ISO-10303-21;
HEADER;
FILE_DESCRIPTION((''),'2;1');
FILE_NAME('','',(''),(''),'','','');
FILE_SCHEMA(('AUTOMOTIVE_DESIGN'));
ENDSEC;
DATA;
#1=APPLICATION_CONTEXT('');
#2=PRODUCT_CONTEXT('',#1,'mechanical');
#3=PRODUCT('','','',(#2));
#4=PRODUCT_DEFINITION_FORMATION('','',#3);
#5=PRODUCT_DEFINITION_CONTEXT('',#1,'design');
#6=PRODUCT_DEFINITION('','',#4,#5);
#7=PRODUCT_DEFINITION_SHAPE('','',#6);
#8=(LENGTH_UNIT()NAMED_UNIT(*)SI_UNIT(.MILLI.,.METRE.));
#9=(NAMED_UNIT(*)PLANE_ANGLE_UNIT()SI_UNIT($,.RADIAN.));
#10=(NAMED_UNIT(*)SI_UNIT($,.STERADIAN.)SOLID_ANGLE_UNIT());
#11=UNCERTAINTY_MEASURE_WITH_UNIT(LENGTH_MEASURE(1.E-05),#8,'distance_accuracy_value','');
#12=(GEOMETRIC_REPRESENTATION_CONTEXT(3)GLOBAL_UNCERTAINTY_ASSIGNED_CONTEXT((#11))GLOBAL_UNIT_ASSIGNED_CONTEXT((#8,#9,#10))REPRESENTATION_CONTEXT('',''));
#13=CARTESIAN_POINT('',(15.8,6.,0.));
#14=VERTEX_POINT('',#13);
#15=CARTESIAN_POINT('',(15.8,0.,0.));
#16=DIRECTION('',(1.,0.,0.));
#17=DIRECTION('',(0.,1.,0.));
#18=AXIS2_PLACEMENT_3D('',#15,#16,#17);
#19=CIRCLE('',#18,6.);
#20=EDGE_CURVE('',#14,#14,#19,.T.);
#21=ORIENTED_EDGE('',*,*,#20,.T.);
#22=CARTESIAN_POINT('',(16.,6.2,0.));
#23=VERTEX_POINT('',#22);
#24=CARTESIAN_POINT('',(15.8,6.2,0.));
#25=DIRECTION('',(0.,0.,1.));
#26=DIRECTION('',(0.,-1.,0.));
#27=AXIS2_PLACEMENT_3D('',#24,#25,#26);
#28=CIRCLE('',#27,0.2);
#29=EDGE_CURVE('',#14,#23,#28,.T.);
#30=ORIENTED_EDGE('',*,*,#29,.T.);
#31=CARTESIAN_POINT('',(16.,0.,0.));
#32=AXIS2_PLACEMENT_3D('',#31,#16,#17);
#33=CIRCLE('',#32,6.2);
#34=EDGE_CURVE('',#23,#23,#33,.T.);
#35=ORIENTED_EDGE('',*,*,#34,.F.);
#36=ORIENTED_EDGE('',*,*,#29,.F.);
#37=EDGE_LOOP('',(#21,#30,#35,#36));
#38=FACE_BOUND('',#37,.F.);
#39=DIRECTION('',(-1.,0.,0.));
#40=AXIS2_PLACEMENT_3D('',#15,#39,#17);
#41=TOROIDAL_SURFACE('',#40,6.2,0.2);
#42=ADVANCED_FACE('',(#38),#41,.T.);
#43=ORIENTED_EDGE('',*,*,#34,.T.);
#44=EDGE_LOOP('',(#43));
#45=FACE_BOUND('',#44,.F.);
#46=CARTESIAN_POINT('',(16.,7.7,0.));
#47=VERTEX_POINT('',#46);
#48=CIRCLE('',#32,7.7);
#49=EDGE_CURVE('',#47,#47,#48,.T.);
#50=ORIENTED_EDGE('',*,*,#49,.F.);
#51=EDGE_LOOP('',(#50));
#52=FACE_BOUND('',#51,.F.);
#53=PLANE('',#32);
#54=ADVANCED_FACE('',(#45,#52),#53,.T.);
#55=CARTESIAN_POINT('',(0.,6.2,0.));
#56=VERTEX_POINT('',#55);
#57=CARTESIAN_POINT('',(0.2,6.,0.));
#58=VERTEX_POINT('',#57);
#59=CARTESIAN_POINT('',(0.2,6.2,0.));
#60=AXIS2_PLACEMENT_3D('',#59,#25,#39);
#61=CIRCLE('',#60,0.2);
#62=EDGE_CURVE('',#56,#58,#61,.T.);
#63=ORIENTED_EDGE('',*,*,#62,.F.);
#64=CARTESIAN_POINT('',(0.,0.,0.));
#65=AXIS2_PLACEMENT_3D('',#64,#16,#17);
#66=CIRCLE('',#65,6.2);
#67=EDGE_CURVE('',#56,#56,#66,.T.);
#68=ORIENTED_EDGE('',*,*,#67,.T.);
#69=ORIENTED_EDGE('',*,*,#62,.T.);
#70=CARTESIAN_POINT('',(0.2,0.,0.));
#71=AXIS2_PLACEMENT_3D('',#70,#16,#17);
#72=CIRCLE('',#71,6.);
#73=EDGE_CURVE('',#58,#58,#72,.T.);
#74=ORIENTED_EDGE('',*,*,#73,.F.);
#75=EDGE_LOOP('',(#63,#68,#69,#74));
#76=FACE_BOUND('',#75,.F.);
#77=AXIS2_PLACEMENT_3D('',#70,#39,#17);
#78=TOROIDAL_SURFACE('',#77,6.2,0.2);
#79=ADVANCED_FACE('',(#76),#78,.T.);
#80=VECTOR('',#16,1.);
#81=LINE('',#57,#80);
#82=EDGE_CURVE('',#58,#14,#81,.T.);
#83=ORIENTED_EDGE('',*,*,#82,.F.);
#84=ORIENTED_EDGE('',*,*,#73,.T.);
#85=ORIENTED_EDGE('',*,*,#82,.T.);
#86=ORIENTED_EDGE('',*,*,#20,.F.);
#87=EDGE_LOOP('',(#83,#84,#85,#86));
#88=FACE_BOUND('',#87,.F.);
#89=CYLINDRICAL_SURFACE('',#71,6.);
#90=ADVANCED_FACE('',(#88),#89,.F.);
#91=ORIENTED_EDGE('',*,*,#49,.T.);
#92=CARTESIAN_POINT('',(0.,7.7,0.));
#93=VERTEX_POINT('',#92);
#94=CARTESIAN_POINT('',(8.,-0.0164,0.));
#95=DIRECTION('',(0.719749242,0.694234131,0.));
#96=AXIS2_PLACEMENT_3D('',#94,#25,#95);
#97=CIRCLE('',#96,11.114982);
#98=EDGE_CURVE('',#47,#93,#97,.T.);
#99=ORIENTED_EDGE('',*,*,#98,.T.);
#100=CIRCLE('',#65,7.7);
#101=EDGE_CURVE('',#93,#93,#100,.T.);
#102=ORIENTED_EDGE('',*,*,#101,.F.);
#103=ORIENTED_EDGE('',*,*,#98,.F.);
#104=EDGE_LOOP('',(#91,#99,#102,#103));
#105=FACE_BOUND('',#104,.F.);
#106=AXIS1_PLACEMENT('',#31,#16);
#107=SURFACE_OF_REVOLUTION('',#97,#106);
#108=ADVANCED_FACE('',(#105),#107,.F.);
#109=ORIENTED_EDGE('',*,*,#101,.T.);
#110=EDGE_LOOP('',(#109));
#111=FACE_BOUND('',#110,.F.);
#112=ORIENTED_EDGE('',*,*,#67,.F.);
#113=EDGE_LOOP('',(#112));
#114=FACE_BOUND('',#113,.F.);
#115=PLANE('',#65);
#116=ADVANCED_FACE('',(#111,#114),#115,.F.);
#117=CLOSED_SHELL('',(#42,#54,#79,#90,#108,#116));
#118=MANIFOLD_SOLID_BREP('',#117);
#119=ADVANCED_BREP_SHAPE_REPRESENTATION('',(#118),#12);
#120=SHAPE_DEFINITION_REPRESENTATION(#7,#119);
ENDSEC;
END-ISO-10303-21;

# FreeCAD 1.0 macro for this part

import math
import FreeCAD as App
import Part
import Sketcher
from FreeCAD import Vector
Q = App.Units.Quantity

doc = App.newDocument("Part")
params = doc.addObject("Spreadsheet::Sheet", "Params")
for row, (alias, value) in enumerate([
    ("sketch1_radius", "0.2 mm"),
    ("sketch1_width", "15.6 mm"),
    ("sketch1_height", "1.5 mm"),
    ("revolution_angle", "360 deg"),
], start=1):
    params.set(f"A{row}", alias)
    params.set(f"B{row}", "=" + value)
    params.setAlias(f"B{row}", alias)

body = doc.addObject("PartDesign::Body", "Body")

sketch1 = body.newObject("Sketcher::SketchObject", "Sketch")
sketch1.AttachmentSupport = (doc.getObject("XY_Plane"), [""])
sketch1.MapMode = "FlatFace"
sketch1.addGeometry(Part.LineSegment(Vector(0, 7.7, 0), Vector(0, 6.2, 0)), False)
sketch1.addGeometry(Part.ArcOfCircle(Part.Circle(Vector(0.2, 6.2, 0), Vector(0, 0, 1), 0.2), math.radians(180), math.radians(270)), False)
sketch1.addGeometry(Part.LineSegment(Vector(0.2, 6, 0), Vector(15.8, 6, 0)), False)
sketch1.addGeometry(Part.ArcOfCircle(Part.Circle(Vector(15.8, 6.2, 0), Vector(0, 0, 1), 0.2), math.radians(-90), math.radians(0)), False)
sketch1.addGeometry(Part.LineSegment(Vector(16, 6.2, 0), Vector(16, 7.7, 0)), False)
sketch1.addGeometry(Part.ArcOfCircle(Part.Circle(Vector(8, -0.02, 0), Vector(0, 0, 1), 11.11), math.radians(44), math.radians(136)), False)
sketch1.addConstraint(Sketcher.Constraint("Tangent", 0, 2, 1, 1))
sketch1.addConstraint(Sketcher.Constraint("Tangent", 1, 2, 2, 1))
sketch1.addConstraint(Sketcher.Constraint("Tangent", 2, 2, 3, 1))
sketch1.addConstraint(Sketcher.Constraint("Tangent", 3, 2, 4, 1))
sketch1.addConstraint(Sketcher.Constraint("Coincident", 4, 2, 5, 1))
sketch1.addConstraint(Sketcher.Constraint("Coincident", 5, 2, 0, 1))
sketch1.addConstraint(Sketcher.Constraint("Vertical", 0))
sketch1.addConstraint(Sketcher.Constraint("Horizontal", 2))
sketch1.addConstraint(Sketcher.Constraint("Vertical", 4))
sketch1.addConstraint(Sketcher.Constraint("Equal", 1, 3))
sketch1.addConstraint(Sketcher.Constraint("PointOnObject", 0, 2, -2))
sketch1.addConstraint(Sketcher.Constraint("Horizontal", 4, 2, 5, 2))
sketch1.addConstraint(Sketcher.Constraint("Radius", 1, Q("0.2 mm")))
sketch1.addConstraint(Sketcher.Constraint("DistanceX", 2, 1, 2, 2, Q("15.6 mm")))
sketch1.addConstraint(Sketcher.Constraint("DistanceY", 0, 2, 0, 1, Q("1.5 mm")))
sketch1.addConstraint(Sketcher.Constraint("DistanceY", -1, 1, 1, 2, Q("6 mm")))
sketch1.addConstraint(Sketcher.Constraint("Radius", 5, Q("11.115 mm")))
sketch1.setExpression("Constraints[12]", "Params.sketch1_radius")
sketch1.setExpression("Constraints[13]", "Params.sketch1_width")
sketch1.setExpression("Constraints[14]", "Params.sketch1_height")
revolution = body.newObject("PartDesign::Revolution", "Revolution")
revolution.Profile = sketch1
revolution.ReferenceAxis = (sketch1, ["H_Axis"])
revolution.setExpression("Angle", "Params.revolution_angle")

doc.recompute()
